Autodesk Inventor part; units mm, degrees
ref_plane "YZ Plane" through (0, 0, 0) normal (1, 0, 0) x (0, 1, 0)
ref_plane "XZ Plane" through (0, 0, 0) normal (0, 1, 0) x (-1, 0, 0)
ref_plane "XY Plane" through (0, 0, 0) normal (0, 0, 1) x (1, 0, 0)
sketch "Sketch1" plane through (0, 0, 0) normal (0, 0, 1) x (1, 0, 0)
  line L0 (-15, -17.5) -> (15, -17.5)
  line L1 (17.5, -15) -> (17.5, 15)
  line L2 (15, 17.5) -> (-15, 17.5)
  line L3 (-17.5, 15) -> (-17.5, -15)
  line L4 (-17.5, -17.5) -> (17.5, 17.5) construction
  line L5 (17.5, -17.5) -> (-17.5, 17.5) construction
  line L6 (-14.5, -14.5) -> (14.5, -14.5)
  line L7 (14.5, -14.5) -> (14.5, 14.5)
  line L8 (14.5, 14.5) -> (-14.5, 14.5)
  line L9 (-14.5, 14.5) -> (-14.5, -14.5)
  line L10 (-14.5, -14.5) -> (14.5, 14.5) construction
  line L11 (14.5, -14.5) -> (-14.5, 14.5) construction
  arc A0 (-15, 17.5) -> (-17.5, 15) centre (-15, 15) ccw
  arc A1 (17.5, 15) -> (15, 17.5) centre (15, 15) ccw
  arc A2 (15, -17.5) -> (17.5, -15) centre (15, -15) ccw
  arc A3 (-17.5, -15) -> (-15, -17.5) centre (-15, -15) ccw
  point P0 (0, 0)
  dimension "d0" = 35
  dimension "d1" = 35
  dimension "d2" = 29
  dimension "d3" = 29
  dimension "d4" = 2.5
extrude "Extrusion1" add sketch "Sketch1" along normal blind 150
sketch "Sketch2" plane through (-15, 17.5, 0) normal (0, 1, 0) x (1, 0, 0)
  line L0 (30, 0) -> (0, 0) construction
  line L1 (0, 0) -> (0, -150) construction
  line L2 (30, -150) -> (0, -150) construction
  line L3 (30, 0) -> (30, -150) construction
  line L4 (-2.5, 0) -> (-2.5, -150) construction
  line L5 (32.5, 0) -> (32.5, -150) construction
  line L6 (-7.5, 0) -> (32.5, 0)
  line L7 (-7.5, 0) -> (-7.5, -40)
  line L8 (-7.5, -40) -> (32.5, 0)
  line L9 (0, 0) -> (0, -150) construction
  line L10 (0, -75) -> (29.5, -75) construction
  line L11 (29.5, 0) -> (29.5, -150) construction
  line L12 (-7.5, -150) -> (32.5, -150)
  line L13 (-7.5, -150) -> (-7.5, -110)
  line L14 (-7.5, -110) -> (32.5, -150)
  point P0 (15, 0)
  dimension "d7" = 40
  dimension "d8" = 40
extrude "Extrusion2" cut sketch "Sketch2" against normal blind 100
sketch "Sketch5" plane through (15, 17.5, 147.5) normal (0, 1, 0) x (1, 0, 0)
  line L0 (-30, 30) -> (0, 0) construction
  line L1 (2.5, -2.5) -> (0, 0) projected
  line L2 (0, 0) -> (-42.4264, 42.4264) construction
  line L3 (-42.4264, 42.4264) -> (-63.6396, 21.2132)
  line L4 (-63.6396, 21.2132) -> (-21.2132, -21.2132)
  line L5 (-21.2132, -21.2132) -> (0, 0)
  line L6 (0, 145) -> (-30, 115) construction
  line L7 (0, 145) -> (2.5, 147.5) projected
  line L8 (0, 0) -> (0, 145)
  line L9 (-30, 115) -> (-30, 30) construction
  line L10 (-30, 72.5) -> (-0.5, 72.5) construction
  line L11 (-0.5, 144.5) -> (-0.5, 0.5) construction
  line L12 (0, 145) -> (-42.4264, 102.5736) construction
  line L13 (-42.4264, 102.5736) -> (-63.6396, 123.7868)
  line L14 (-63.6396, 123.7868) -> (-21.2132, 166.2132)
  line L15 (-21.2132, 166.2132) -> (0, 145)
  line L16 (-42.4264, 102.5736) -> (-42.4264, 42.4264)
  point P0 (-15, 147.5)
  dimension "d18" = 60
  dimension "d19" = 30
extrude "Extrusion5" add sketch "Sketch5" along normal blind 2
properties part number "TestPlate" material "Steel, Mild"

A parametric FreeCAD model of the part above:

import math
import FreeCAD as App
import Part
import Sketcher

V = App.Vector
Q = App.Units.Quantity

doc = App.newDocument("Part")
body = doc.addObject("PartDesign::Body", "Body")

sketch1 = body.newObject("Sketcher::SketchObject", "Sketch")
sketch1.AttachmentSupport = (doc.getObject("XY_Plane"), [""])
sketch1.MapMode = "FlatFace"
sketch1.addGeometry([
    Part.ArcOfCircle(Part.Circle(V(-15, -15, 0), V(0, 0, 1), 2.5), math.radians(180), math.radians(270)),
    Part.LineSegment(V(-15, -17.5, 0), V(15, -17.5, 0)),
    Part.ArcOfCircle(Part.Circle(V(15, -15, 0), V(0, 0, 1), 2.5), math.radians(-90), math.radians(0)),
    Part.LineSegment(V(17.5, -15, 0), V(17.5, 15, 0)),
    Part.ArcOfCircle(Part.Circle(V(15, 15, 0), V(0, 0, 1), 2.5), math.radians(0), math.radians(90)),
    Part.LineSegment(V(15, 17.5, 0), V(-15, 17.5, 0)),
    Part.ArcOfCircle(Part.Circle(V(-15, 15, 0), V(0, 0, 1), 2.5), math.radians(90), math.radians(180)),
    Part.LineSegment(V(-17.5, 15, 0), V(-17.5, -15, 0)),
    Part.LineSegment(V(14.5, -14.5, 0), V(-14.5, -14.5, 0)),
    Part.LineSegment(V(-14.5, -14.5, 0), V(-14.5, 14.5, 0)),
    Part.LineSegment(V(-14.5, 14.5, 0), V(14.5, 14.5, 0)),
    Part.LineSegment(V(14.5, 14.5, 0), V(14.5, -14.5, 0)),
], False)
sketch1.addConstraint([
    Sketcher.Constraint("Tangent", 0, 2, 1, 1),
    Sketcher.Constraint("Tangent", 1, 2, 2, 1),
    Sketcher.Constraint("Tangent", 2, 2, 3, 1),
    Sketcher.Constraint("Tangent", 3, 2, 4, 1),
    Sketcher.Constraint("Tangent", 4, 2, 5, 1),
    Sketcher.Constraint("Tangent", 5, 2, 6, 1),
    Sketcher.Constraint("Tangent", 6, 2, 7, 1),
    Sketcher.Constraint("Tangent", 7, 2, 0, 1),
    Sketcher.Constraint("Coincident", 8, 2, 9, 1),
    Sketcher.Constraint("Coincident", 9, 2, 10, 1),
    Sketcher.Constraint("Coincident", 10, 2, 11, 1),
    Sketcher.Constraint("Coincident", 11, 2, 8, 1),
    Sketcher.Constraint("Horizontal", 1),
    Sketcher.Constraint("Vertical", 3),
    Sketcher.Constraint("Horizontal", 5),
    Sketcher.Constraint("Vertical", 7),
    Sketcher.Constraint("Horizontal", 8),
    Sketcher.Constraint("Vertical", 9),
    Sketcher.Constraint("Horizontal", 10),
    Sketcher.Constraint("Vertical", 11),
    Sketcher.Constraint("Equal", 0, 2),
    Sketcher.Constraint("Equal", 2, 4),
    Sketcher.Constraint("Equal", 4, 6),
    Sketcher.Constraint("Symmetric", 0, 3, 4, 3, -1, 1),
    Sketcher.Constraint("Symmetric", 8, 2, 10, 2, -1, 1),
    Sketcher.Constraint("Equal", 5, 3),
    Sketcher.Constraint("Equal", 10, 9),
    Sketcher.Constraint("Radius", 0, Q("2.5 mm")),
    Sketcher.Constraint("DistanceX", 8, 2, 8, 1, Q("29 mm")),
    Sketcher.Constraint("DistanceX", 1, 1, 1, 2, Q("30 mm")),
])
pad1 = body.newObject("PartDesign::Pad", "Pad")
pad1.Profile = sketch1
pad1.Length = 150

sketch2 = body.newObject("Sketcher::SketchObject", "Sketch001")
sketch2.AttachmentSupport = (doc.getObject("XZ_Plane"), [""])
sketch2.MapMode = "FlatFace"
sketch2.AttachmentOffset = App.Placement(V(0, 0, -17.5), App.Rotation())
sketch2.addGeometry([
    Part.LineSegment(V(17.5, 0, 0), V(-22.5, 0, 0)),
    Part.LineSegment(V(-22.5, 0, 0), V(-22.5, 40, 0)),
    Part.LineSegment(V(-22.5, 40, 0), V(17.5, 0, 0)),
    Part.LineSegment(V(-22.5, 110, 0), V(-22.5, 150, 0)),
    Part.LineSegment(V(-22.5, 150, 0), V(17.5, 150, 0)),
    Part.LineSegment(V(17.5, 150, 0), V(-22.5, 110, 0)),
], False)
sketch2.addConstraint([
    Sketcher.Constraint("Coincident", 0, 2, 1, 1),
    Sketcher.Constraint("Coincident", 1, 2, 2, 1),
    Sketcher.Constraint("Coincident", 2, 2, 0, 1),
    Sketcher.Constraint("Coincident", 3, 2, 4, 1),
    Sketcher.Constraint("Coincident", 4, 2, 5, 1),
    Sketcher.Constraint("Coincident", 5, 2, 3, 1),
    Sketcher.Constraint("Horizontal", 0),
    Sketcher.Constraint("Vertical", 1),
    Sketcher.Constraint("Vertical", 3),
    Sketcher.Constraint("Horizontal", 4),
    Sketcher.Constraint("PointOnObject", 0, 2, -1),
    Sketcher.Constraint("Perpendicular", 2, 5),
    Sketcher.Constraint("Vertical", 1, 2, 3, 2),
    Sketcher.Constraint("Vertical", 2, 2, 4, 2),
    Sketcher.Constraint("Equal", 4, 1),
    Sketcher.Constraint("DistanceX", 0, 2, 0, 1, Q("40 mm")),
    Sketcher.Constraint("DistanceY", -1, 1, 3, 2, Q("150 mm")),
    Sketcher.Constraint("DistanceX", 0, 2, -1, 1, Q("22.5 mm")),
])
pocket1 = body.newObject("PartDesign::Pocket", "Pocket")
pocket1.Profile = sketch2
pocket1.Length = 100
pocket1.Reversed = True

sketch3 = body.newObject("Sketcher::SketchObject", "Sketch002")
sketch3.AttachmentSupport = (doc.getObject("XZ_Plane"), [""])
sketch3.MapMode = "FlatFace"
sketch3.AttachmentOffset = App.Placement(V(0, 0, -17.5), App.Rotation())
sketch3.addGeometry([
    Part.LineSegment(V(-27.4264, 44.9264, 0), V(-27.4264, 105.0736, 0)),
    Part.LineSegment(V(-27.4264, 105.0736, 0), V(-48.6396, 126.2868, 0)),
    Part.LineSegment(V(-48.6396, 126.2868, 0), V(-6.2132, 168.7132, 0)),
    Part.LineSegment(V(-6.2132, 168.7132, 0), V(15, 147.5, 0)),
    Part.LineSegment(V(15, 147.5, 0), V(15, 2.5, 0)),
    Part.LineSegment(V(15, 2.5, 0), V(-6.2132, -18.7132, 0)),
    Part.LineSegment(V(-6.2132, -18.7132, 0), V(-48.6396, 23.7132, 0)),
    Part.LineSegment(V(-48.6396, 23.7132, 0), V(-27.4264, 44.9264, 0)),
], False)
sketch3.addConstraint([
    Sketcher.Constraint("Coincident", 0, 2, 1, 1),
    Sketcher.Constraint("Coincident", 1, 2, 2, 1),
    Sketcher.Constraint("Coincident", 2, 2, 3, 1),
    Sketcher.Constraint("Coincident", 3, 2, 4, 1),
    Sketcher.Constraint("Coincident", 4, 2, 5, 1),
    Sketcher.Constraint("Coincident", 5, 2, 6, 1),
    Sketcher.Constraint("Coincident", 6, 2, 7, 1),
    Sketcher.Constraint("Coincident", 7, 2, 0, 1),
    Sketcher.Constraint("Vertical", 0),
    Sketcher.Constraint("Vertical", 4),
    Sketcher.Constraint("Perpendicular", 1, 2),
    Sketcher.Constraint("Perpendicular", 2, 3),
    Sketcher.Constraint("Perpendicular", 3, 5),
    Sketcher.Constraint("Perpendicular", 5, 6),
    Sketcher.Constraint("Perpendicular", 6, 7),
    Sketcher.Constraint("Vertical", 2, 2, 5, 2),
    Sketcher.Constraint("Vertical", 1, 2, 6, 2),
    Sketcher.Constraint("Equal", 1, 3),
    Sketcher.Constraint("Equal", 3, 5),
    Sketcher.Constraint("Distance", 1, Q("30 mm")),
    Sketcher.Constraint("Distance", 2, Q("60 mm")),
    Sketcher.Constraint("DistanceY", 4, 2, 4, 1, Q("145 mm")),
    Sketcher.Constraint("DistanceX", -1, 1, 3, 2, Q("15 mm")),
    Sketcher.Constraint("DistanceY", -1, 1, 3, 2, Q("147.5 mm")),
])
pad2 = body.newObject("PartDesign::Pad", "Pad001")
pad2.Profile = sketch3
pad2.Length = 2
pad2.Reversed = True

doc.recompute()
